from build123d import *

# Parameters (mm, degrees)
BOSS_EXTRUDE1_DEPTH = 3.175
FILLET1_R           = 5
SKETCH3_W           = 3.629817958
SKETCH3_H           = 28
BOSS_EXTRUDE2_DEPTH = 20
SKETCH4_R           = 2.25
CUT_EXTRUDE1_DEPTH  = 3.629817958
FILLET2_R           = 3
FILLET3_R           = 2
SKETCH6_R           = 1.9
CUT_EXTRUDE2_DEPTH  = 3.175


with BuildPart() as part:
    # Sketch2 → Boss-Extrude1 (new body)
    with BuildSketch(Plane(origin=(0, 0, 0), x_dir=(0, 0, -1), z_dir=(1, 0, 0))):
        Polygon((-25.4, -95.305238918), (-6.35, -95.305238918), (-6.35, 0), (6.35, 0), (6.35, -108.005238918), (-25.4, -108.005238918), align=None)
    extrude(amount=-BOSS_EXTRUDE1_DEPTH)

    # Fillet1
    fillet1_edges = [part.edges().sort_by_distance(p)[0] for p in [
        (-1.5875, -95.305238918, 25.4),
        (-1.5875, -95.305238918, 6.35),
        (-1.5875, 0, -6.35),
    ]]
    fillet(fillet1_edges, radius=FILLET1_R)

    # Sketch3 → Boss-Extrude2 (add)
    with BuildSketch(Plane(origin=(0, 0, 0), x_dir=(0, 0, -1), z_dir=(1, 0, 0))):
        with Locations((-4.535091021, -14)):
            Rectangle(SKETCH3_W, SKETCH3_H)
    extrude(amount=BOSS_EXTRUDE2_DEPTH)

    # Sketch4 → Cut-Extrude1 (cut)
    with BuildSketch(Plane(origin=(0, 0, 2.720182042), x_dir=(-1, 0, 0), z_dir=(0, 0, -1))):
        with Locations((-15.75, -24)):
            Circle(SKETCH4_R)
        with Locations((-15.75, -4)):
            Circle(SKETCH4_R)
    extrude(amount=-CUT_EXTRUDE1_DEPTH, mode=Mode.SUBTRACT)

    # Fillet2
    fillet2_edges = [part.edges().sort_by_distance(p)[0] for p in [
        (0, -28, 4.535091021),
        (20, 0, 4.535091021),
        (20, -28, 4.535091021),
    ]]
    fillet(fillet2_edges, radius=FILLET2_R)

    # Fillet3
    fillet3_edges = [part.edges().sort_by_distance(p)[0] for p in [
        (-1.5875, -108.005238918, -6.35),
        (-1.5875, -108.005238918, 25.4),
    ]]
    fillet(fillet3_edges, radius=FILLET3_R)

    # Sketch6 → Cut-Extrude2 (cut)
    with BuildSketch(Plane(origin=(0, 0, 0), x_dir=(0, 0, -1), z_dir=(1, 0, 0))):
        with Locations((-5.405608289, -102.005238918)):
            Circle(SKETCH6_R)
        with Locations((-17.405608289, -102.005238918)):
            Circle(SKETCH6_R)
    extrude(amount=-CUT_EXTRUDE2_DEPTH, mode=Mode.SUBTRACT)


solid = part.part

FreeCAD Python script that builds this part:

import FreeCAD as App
import Part
import Sketcher
Q = App.Units.Quantity


def edges_at(feature, points):
    """Names of the edges that pass closest to the given points."""
    edges = feature.Shape.Edges
    near = lambda p: min(range(len(edges)), key=lambda i: edges[i].distToShape(Part.Vertex(*p))[0])
    return sorted({f"Edge{near(p) + 1}" for p in points})

doc = App.newDocument("Part")
body = doc.addObject("PartDesign::Body", "Body")

sketch1 = body.newObject("Sketcher::SketchObject", "Sketch")
sketch1.AttachmentSupport = (doc.getObject("YZ_Plane"), [""])
sketch1.MapMode = "FlatFace"
sketch1.addGeometry(Part.LineSegment(App.Vector(-95, 6, 0), App.Vector(-95, 25, 0)), False)
sketch1.addGeometry(Part.LineSegment(App.Vector(-95, 25, 0), App.Vector(-108, 25, 0)), False)
sketch1.addGeometry(Part.LineSegment(App.Vector(-108, 25, 0), App.Vector(-108, -6, 0)), False)
sketch1.addGeometry(Part.LineSegment(App.Vector(-108, -6, 0), App.Vector(0, -6, 0)), False)
sketch1.addGeometry(Part.LineSegment(App.Vector(0, -6, 0), App.Vector(0, 6, 0)), False)
sketch1.addGeometry(Part.LineSegment(App.Vector(0, 6, 0), App.Vector(-95, 6, 0)), False)
sketch1.addConstraint(Sketcher.Constraint("Coincident", 0, 2, 1, 1))
sketch1.addConstraint(Sketcher.Constraint("Coincident", 1, 2, 2, 1))
sketch1.addConstraint(Sketcher.Constraint("Coincident", 2, 2, 3, 1))
sketch1.addConstraint(Sketcher.Constraint("Coincident", 3, 2, 4, 1))
sketch1.addConstraint(Sketcher.Constraint("Coincident", 4, 2, 5, 1))
sketch1.addConstraint(Sketcher.Constraint("Coincident", 5, 2, 0, 1))
sketch1.addConstraint(Sketcher.Constraint("Vertical", 0))
sketch1.addConstraint(Sketcher.Constraint("Horizontal", 1))
sketch1.addConstraint(Sketcher.Constraint("Vertical", 2))
sketch1.addConstraint(Sketcher.Constraint("Horizontal", 3))
sketch1.addConstraint(Sketcher.Constraint("Vertical", 4))
sketch1.addConstraint(Sketcher.Constraint("Horizontal", 5))
sketch1.addConstraint(Sketcher.Constraint("Symmetric", 3, 2, 4, 2, -1, 1))
sketch1.addConstraint(Sketcher.Constraint("Equal", 1, 4))
sketch1.addConstraint(Sketcher.Constraint("DistanceX", 1, 2, 1, 1, Q("12.7 mm")))
sketch1.addConstraint(Sketcher.Constraint("DistanceY", 0, 1, 0, 2, Q("19.05 mm")))
sketch1.addConstraint(Sketcher.Constraint("DistanceX", 3, 1, 3, 2, Q("108.005239 mm")))
pad1 = body.newObject("PartDesign::Pad", "Pad")
pad1.Profile = sketch1
pad1.Length = 3.175
pad1.Reversed = True
doc.recompute()

fillet = body.newObject("PartDesign::Fillet", "Fillet")
fillet.Base = (pad1, edges_at(pad1, [(-1.587, -95.305, 25.4), (-1.587, -95.305, 6.35), (-1.587, 0, -6.35)]))
fillet.Radius = 5

sketch2 = body.newObject("Sketcher::SketchObject", "Sketch001")
sketch2.AttachmentSupport = (doc.getObject("YZ_Plane"), [""])
sketch2.MapMode = "FlatFace"
sketch2.addGeometry(Part.LineSegment(App.Vector(0, 6.3, 0), App.Vector(-28, 6.3, 0)), False)
sketch2.addGeometry(Part.LineSegment(App.Vector(-28, 6.3, 0), App.Vector(-28, 2.7, 0)), False)
sketch2.addGeometry(Part.LineSegment(App.Vector(-28, 2.7, 0), App.Vector(0, 2.7, 0)), False)
sketch2.addGeometry(Part.LineSegment(App.Vector(0, 2.7, 0), App.Vector(0, 6.3, 0)), False)
sketch2.addConstraint(Sketcher.Constraint("Coincident", 0, 2, 1, 1))
sketch2.addConstraint(Sketcher.Constraint("Coincident", 1, 2, 2, 1))
sketch2.addConstraint(Sketcher.Constraint("Coincident", 2, 2, 3, 1))
sketch2.addConstraint(Sketcher.Constraint("Coincident", 3, 2, 0, 1))
sketch2.addConstraint(Sketcher.Constraint("Horizontal", 0))
sketch2.addConstraint(Sketcher.Constraint("Vertical", 1))
sketch2.addConstraint(Sketcher.Constraint("Horizontal", 2))
sketch2.addConstraint(Sketcher.Constraint("Vertical", 3))
sketch2.addConstraint(Sketcher.Constraint("PointOnObject", 2, 2, -2))
sketch2.addConstraint(Sketcher.Constraint("DistanceX", 0, 2, 0, 1, Q("28 mm")))
sketch2.addConstraint(Sketcher.Constraint("DistanceY", -1, 1, 0, 2, Q("6.35 mm")))
sketch2.addConstraint(Sketcher.Constraint("DistanceY", 1, 2, 1, 1, Q("3.629818 mm")))
pad2 = body.newObject("PartDesign::Pad", "Pad001")
pad2.Profile = sketch2
pad2.Length = 20

sketch3 = body.newObject("Sketcher::SketchObject", "Sketch002")
sketch3.AttachmentSupport = (doc.getObject("XY_Plane"), [""])
sketch3.MapMode = "FlatFace"
sketch3.AttachmentOffset = App.Placement(App.Vector(0, 0, 2.720182), App.Rotation())
sketch3.addGeometry(Part.Circle(App.Vector(15.8, -24, 0), App.Vector(0, 0, 1), 2.2), False)
sketch3.addGeometry(Part.Circle(App.Vector(15.8, -4, 0), App.Vector(0, 0, 1), 2.2), False)
sketch3.addConstraint(Sketcher.Constraint("Equal", 0, 1))
sketch3.addConstraint(Sketcher.Constraint("Vertical", 0, 3, 1, 3))
sketch3.addConstraint(Sketcher.Constraint("Diameter", 0, Q("4.5 mm")))
sketch3.addConstraint(Sketcher.Constraint("DistanceY", 0, 3, -1, 1, Q("24 mm")))
sketch3.addConstraint(Sketcher.Constraint("DistanceY", 1, 3, -1, 1, Q("4 mm")))
sketch3.addConstraint(Sketcher.Constraint("DistanceX", -1, 1, 0, 3, Q("15.75 mm")))
pocket1 = body.newObject("PartDesign::Pocket", "Pocket")
pocket1.Profile = sketch3
pocket1.Length = 3.629818
pocket1.Reversed = True
doc.recompute()

fillet2 = body.newObject("PartDesign::Fillet", "Fillet001")
fillet2.Base = (pocket1, edges_at(pocket1, [(0, -28, 4.535), (20, 0, 4.535), (20, -28, 4.535)]))
fillet2.Radius = 3
doc.recompute()

fillet3 = body.newObject("PartDesign::Fillet", "Fillet002")
fillet3.Base = (fillet2, edges_at(fillet2, [(-1.587, -108.005, -6.35), (-1.587, -108.005, 25.4)]))
fillet3.Radius = 2

sketch4 = body.newObject("Sketcher::SketchObject", "Sketch003")
sketch4.AttachmentSupport = (doc.getObject("YZ_Plane"), [""])
sketch4.MapMode = "FlatFace"
sketch4.addGeometry(Part.Circle(App.Vector(-102, 5.4, 0), App.Vector(0, 0, 1), 1.9), False)
sketch4.addGeometry(Part.Circle(App.Vector(-102, 17.4, 0), App.Vector(0, 0, 1), 1.9), False)
sketch4.addConstraint(Sketcher.Constraint("Equal", 0, 1))
sketch4.addConstraint(Sketcher.Constraint("Vertical", 0, 3, 1, 3))
sketch4.addConstraint(Sketcher.Constraint("Diameter", 0, Q("3.8 mm")))
sketch4.addConstraint(Sketcher.Constraint("DistanceY", 0, 3, 1, 3, Q("12 mm")))
sketch4.addConstraint(Sketcher.Constraint("DistanceX", 0, 3, -1, 1, Q("102.005239 mm")))
sketch4.addConstraint(Sketcher.Constraint("DistanceY", -1, 1, 0, 3, Q("5.405608 mm")))
pocket2 = body.newObject("PartDesign::Pocket", "Pocket001")
pocket2.Profile = sketch4
pocket2.Length = 3.175

doc.recompute()
